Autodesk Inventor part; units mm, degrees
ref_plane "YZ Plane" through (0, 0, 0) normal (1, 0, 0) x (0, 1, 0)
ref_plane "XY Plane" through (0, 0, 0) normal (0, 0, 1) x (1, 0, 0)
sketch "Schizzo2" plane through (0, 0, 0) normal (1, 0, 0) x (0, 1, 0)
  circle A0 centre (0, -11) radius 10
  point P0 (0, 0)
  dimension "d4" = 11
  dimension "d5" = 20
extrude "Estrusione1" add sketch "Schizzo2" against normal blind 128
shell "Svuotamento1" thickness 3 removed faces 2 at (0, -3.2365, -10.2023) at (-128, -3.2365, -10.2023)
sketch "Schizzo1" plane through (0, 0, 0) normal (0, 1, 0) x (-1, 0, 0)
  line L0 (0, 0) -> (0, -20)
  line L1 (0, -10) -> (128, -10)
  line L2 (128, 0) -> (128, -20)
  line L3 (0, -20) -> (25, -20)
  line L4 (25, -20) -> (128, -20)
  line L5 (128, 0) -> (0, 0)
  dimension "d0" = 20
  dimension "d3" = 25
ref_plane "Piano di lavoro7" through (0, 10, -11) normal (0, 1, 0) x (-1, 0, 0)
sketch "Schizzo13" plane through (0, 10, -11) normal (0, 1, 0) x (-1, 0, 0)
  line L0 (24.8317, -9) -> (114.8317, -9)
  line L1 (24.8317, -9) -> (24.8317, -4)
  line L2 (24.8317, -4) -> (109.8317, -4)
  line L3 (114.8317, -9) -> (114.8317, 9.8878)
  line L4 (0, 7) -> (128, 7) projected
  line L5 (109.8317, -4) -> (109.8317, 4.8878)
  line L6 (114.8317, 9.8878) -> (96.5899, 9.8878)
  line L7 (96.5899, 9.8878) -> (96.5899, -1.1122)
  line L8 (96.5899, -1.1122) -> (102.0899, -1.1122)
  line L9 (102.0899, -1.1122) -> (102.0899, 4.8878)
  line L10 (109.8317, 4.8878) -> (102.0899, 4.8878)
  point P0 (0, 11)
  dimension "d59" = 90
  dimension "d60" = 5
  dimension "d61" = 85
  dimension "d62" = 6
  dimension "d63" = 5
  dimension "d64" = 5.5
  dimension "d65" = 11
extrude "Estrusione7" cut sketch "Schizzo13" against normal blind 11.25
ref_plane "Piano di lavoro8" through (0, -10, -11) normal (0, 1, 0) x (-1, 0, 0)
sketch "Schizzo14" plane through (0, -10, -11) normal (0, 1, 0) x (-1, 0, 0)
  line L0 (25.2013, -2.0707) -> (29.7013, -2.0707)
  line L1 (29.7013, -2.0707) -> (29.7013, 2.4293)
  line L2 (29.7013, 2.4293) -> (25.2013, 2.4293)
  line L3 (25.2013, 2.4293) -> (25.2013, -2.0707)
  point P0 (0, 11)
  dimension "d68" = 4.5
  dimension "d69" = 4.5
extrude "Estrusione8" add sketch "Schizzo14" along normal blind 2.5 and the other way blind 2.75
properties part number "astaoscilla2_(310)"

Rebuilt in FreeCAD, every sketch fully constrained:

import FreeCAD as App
import Part
import Sketcher
from FreeCAD import Vector
Q = App.Units.Quantity


def faces_at(feature, points):
    """Names of the faces that lie closest to the given points."""
    faces = feature.Shape.Faces
    near = lambda p: min(range(len(faces)), key=lambda i: faces[i].distToShape(Part.Vertex(*p))[0])
    return sorted({f"Face{near(p) + 1}" for p in points})


def add_polygon(sketch, points):
    """Adds a closed chain of lines whose ends are joined by coincident constraints."""
    first, n = sketch.GeometryCount, len(points)
    for a, b in zip(points, points[1:] + points[:1]):
        sketch.addGeometry(Part.LineSegment(App.Vector(*a, 0), App.Vector(*b, 0)), False)
    for i in range(n):
        sketch.addConstraint(Sketcher.Constraint("Coincident", first + i, 2, first + (i + 1) % n, 1))

doc = App.newDocument("Part")
params = doc.addObject("Spreadsheet::Sheet", "Params")
for row, (alias, value) in enumerate([
    ("sketch1_diameter", "20 mm"),
    ("pad1_length", "128 mm"),
    ("thickness_wall", "3 mm"),
    ("sketch2_width", "90 mm"),
    ("sketch2_width2", "85 mm"),
    ("sketch2_height", "5 mm"),
    ("sketch2_height2", "11 mm"),
    ("sketch2_height3", "6 mm"),
    ("pocket1_length", "11.25 mm"),
    ("sketch3_width", "4.5 mm"),
    ("pad2_length", "2.5 mm"),
    ("pad2_length2", "2.75 mm"),
], start=1):
    params.set(f"A{row}", alias)
    params.set(f"B{row}", "=" + value)
    params.setAlias(f"B{row}", alias)

body = doc.addObject("PartDesign::Body", "Body")

# Sketch on YZ plane
sketch1 = body.newObject("Sketcher::SketchObject", "Sketch")
sketch1.AttachmentSupport = (doc.getObject("YZ_Plane"), [""])
sketch1.MapMode = "FlatFace"
sketch1.addGeometry(Part.Circle(Vector(0, -11, 0), Vector(0, 0, 1), 10), False)
sketch1.addConstraint(Sketcher.Constraint("PointOnObject", 0, 3, -2))
sketch1.addConstraint(Sketcher.Constraint("Diameter", 0, Q("20 mm")))
sketch1.addConstraint(Sketcher.Constraint("DistanceY", 0, 3, -1, 1, Q("11 mm")))
sketch1.setExpression("Constraints[1]", "Params.sketch1_diameter")
pad1 = body.newObject("PartDesign::Pad", "Pad")
pad1.Profile = sketch1
pad1.setExpression("Length", "Params.pad1_length")
pad1.Reversed = True
doc.recompute()

thickness = body.newObject("PartDesign::Thickness", "Thickness")
thickness.Base = (pad1, faces_at(pad1, [(0, -3.236, -10.202), (-128, -3.236, -10.202)]))
thickness.setExpression("Value", "Params.thickness_wall")
thickness.Reversed = True
thickness.Join = "Intersection"

# Sketch on XZ plane
sketch2 = body.newObject("Sketcher::SketchObject", "Sketch001")
sketch2.AttachmentSupport = (doc.getObject("XZ_Plane"), [""])
sketch2.MapMode = "FlatFace"
sketch2.AttachmentOffset = App.Placement(Vector(0, 0, -10), App.Rotation())
add_polygon(sketch2, [(-25, -15), (-25, -20), (-115, -20), (-115, -1), (-97, -1), (-97, -12), (-102, -12), (-102, -6), (-110, -6), (-110, -15)])  # lines 0-9
sketch2.addConstraint(Sketcher.Constraint("Vertical", 0))
sketch2.addConstraint(Sketcher.Constraint("Horizontal", 1))
sketch2.addConstraint(Sketcher.Constraint("Vertical", 2))
sketch2.addConstraint(Sketcher.Constraint("Horizontal", 3))
sketch2.addConstraint(Sketcher.Constraint("Vertical", 4))
sketch2.addConstraint(Sketcher.Constraint("Horizontal", 5))
sketch2.addConstraint(Sketcher.Constraint("Vertical", 6))
sketch2.addConstraint(Sketcher.Constraint("Horizontal", 7))
sketch2.addConstraint(Sketcher.Constraint("Vertical", 8))
sketch2.addConstraint(Sketcher.Constraint("Horizontal", 9))
sketch2.addConstraint(Sketcher.Constraint("DistanceX", 1, 2, 1, 1, Q("90 mm")))
sketch2.addConstraint(Sketcher.Constraint("DistanceX", 9, 1, 9, 2, Q("85 mm")))
sketch2.addConstraint(Sketcher.Constraint("DistanceY", 0, 2, 0, 1, Q("5 mm")))
sketch2.addConstraint(Sketcher.Constraint("DistanceY", 4, 2, 4, 1, Q("11 mm")))
sketch2.addConstraint(Sketcher.Constraint("DistanceY", 6, 1, 6, 2, Q("6 mm")))
sketch2.addConstraint(Sketcher.Constraint("DistanceX", 5, 2, 5, 1, Q("5.5 mm")))
sketch2.addConstraint(Sketcher.Constraint("DistanceY", 0, 2, -1, 1, Q("20 mm")))
sketch2.addConstraint(Sketcher.Constraint("DistanceX", 3, 2, -1, 1, Q("96.59 mm")))
sketch2.addConstraint(Sketcher.Constraint("DistanceX", 3, 1, 3, 2, Q("18.2418 mm")))
sketch2.addConstraint(Sketcher.Constraint("DistanceY", 2, 1, 2, 2, Q("18.8878 mm")))
sketch2.setExpression("Constraints[20]", "Params.sketch2_width")
sketch2.setExpression("Constraints[21]", "Params.sketch2_width2")
sketch2.setExpression("Constraints[22]", "Params.sketch2_height")
sketch2.setExpression("Constraints[23]", "Params.sketch2_height2")
sketch2.setExpression("Constraints[24]", "Params.sketch2_height3")
pocket1 = body.newObject("PartDesign::Pocket", "Pocket")
pocket1.Profile = sketch2
pocket1.setExpression("Length", "Params.pocket1_length")
pocket1.Reversed = True

# Sketch on XZ plane
sketch3 = body.newObject("Sketcher::SketchObject", "Sketch002")
sketch3.AttachmentSupport = (doc.getObject("XZ_Plane"), [""])
sketch3.MapMode = "FlatFace"
sketch3.AttachmentOffset = App.Placement(Vector(0, 0, 10), App.Rotation())
add_polygon(sketch3, [(-25.2, -8.6), (-25.2, -13.1), (-29.7, -13.1), (-29.7, -8.6)])  # lines 0-3
sketch3.addConstraint(Sketcher.Constraint("Vertical", 0))
sketch3.addConstraint(Sketcher.Constraint("Horizontal", 1))
sketch3.addConstraint(Sketcher.Constraint("Vertical", 2))
sketch3.addConstraint(Sketcher.Constraint("Horizontal", 3))
sketch3.addConstraint(Sketcher.Constraint("Equal", 3, 0))
sketch3.addConstraint(Sketcher.Constraint("DistanceX", 1, 2, 1, 1, Q("4.5 mm")))
sketch3.addConstraint(Sketcher.Constraint("DistanceX", 0, 2, -1, 1, Q("25.2013 mm")))
sketch3.addConstraint(Sketcher.Constraint("DistanceY", 0, 2, -1, 1, Q("13.0707 mm")))
sketch3.setExpression("Constraints[9]", "Params.sketch3_width")
pad2 = body.newObject("PartDesign::Pad", "Pad001")
pad2.Profile = sketch3
pad2.Type = "TwoLengths"
pad2.setExpression("Length", "Params.pad2_length")
pad2.setExpression("Length2", "Params.pad2_length2")
pad2.Reversed = True

doc.recompute()
